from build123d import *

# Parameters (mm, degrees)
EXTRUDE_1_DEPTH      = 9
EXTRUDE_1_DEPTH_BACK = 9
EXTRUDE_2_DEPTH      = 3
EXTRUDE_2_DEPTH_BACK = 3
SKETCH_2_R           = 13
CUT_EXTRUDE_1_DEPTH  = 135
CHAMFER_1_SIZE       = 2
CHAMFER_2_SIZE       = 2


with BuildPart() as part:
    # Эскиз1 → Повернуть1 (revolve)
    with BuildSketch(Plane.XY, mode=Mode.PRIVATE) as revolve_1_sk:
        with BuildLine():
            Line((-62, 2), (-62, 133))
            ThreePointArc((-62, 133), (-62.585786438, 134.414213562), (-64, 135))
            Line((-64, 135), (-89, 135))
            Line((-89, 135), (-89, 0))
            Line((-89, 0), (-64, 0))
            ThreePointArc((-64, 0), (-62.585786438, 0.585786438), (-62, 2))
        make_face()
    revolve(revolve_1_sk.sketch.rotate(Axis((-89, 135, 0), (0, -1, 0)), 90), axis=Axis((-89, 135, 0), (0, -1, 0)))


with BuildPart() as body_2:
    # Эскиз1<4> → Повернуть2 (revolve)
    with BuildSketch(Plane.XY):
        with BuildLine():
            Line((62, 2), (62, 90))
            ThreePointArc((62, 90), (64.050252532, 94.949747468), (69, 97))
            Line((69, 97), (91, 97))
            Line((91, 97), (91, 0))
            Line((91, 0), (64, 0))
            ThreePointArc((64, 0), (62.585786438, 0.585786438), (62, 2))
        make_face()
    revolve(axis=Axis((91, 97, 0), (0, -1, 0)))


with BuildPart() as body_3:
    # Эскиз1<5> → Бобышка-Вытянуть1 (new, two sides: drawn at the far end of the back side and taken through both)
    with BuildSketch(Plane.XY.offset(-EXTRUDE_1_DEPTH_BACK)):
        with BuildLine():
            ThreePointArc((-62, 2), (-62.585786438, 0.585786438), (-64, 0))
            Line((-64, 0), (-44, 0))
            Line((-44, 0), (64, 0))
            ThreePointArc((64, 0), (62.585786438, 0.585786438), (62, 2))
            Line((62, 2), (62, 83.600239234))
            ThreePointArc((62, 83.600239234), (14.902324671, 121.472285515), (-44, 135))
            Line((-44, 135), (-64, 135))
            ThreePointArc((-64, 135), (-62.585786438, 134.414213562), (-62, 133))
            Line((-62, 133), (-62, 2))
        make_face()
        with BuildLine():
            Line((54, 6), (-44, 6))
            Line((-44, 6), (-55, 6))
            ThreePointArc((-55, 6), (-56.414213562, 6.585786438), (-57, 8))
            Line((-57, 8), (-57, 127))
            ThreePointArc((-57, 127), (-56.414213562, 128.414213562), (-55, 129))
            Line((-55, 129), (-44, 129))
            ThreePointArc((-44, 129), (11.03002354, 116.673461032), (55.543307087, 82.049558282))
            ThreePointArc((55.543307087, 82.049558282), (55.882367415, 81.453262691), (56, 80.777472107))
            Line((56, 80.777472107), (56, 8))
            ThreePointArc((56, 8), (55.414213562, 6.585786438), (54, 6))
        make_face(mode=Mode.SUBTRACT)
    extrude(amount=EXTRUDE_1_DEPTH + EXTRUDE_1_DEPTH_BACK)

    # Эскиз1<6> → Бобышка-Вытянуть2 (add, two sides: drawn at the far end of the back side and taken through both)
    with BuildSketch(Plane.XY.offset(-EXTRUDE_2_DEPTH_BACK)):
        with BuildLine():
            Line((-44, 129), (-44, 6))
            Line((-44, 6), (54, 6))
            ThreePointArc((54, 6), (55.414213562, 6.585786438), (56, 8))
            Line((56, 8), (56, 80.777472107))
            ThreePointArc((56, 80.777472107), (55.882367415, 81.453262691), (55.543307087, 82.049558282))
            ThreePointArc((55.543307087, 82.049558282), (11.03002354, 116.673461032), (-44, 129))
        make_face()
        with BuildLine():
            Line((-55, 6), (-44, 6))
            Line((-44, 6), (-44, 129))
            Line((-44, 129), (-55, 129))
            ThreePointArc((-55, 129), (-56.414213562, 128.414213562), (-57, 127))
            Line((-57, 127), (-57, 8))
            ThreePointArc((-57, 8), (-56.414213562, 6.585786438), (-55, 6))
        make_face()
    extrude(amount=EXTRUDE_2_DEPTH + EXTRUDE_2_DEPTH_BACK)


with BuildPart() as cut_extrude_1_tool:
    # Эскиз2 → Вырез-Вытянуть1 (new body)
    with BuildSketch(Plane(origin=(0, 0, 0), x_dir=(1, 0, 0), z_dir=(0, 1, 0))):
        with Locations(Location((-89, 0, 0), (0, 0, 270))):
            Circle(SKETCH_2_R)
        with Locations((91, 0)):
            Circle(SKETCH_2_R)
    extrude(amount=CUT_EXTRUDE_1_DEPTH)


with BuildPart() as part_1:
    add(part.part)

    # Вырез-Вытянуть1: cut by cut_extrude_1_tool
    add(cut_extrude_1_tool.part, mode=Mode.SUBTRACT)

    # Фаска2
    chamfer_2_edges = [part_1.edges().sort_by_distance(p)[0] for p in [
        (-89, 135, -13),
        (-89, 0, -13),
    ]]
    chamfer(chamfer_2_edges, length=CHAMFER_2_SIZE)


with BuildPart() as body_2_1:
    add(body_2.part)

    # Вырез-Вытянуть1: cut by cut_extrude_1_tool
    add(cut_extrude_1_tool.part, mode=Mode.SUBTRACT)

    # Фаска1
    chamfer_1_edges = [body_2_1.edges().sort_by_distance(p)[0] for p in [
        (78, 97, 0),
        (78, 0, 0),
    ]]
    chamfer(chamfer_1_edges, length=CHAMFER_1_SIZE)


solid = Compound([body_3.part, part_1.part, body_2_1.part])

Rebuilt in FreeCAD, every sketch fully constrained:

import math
import FreeCAD as App
import Part
import Sketcher

V = App.Vector


def edges_at(feature, points):
    """Names of the edges that pass closest to the given points."""
    edges = feature.Shape.Edges
    near = lambda p: min(range(len(edges)), key=lambda i: edges[i].distToShape(Part.Vertex(*p))[0])
    return sorted({f"Edge{near(p) + 1}" for p in points})

doc = App.newDocument("Part")
params = doc.addObject("Spreadsheet::Sheet", "Params")
for row, (alias, value) in enumerate([
    ("sketch1_radius", "2 mm"),
    ("sketch1_width", "25 mm"),
    ("sketch1_height", "131 mm"),
    ("revolution_angle", "360 deg"),
    ("sketch2_radius", "2 mm"),
    ("sketch2_radius2", "7 mm"),
    ("sketch2_width", "27 mm"),
    ("sketch2_height", "88 mm"),
    ("revolution2_angle", "360 deg"),
    ("sketch3_radius", "2 mm"),
    ("sketch3_radius2", "135 mm"),
    ("sketch3_radius3", "129 mm"),
    ("sketch3_width", "128 mm"),
    ("sketch3_width2", "20 mm"),
    ("pad1_length", "9 mm"),
    ("pad1_length2", "9 mm"),
    ("sketch4_radius", "2 mm"),
    ("sketch4_radius2", "129 mm"),
    ("sketch4_width", "11 mm"),
    ("sketch4_width2", "109 mm"),
    ("sketch4_height", "119 mm"),
    ("pad2_length", "3 mm"),
    ("pad2_length2", "3 mm"),
    ("sketch5_diameter", "26 mm"),
    ("pad3_length", "135 mm"),
    ("chamfer_size", "2 mm"),
    ("chamfer2_size", "2 mm"),
], start=1):
    params.set(f"A{row}", alias)
    params.set(f"B{row}", "=" + value)
    params.setAlias(f"B{row}", alias)

body = doc.addObject("PartDesign::Body", "Body")

sketch1 = body.newObject("Sketcher::SketchObject", "Sketch")
sketch1.AttachmentSupport = (doc.getObject("XY_Plane"), [""])
sketch1.MapMode = "FlatFace"
sketch1.addGeometry(Part.LineSegment(V(-62, 2, 0), V(-62, 133, 0)), False)
sketch1.addGeometry(Part.ArcOfCircle(Part.Circle(V(-64, 133, 0), V(0, 0, 1), 2), math.radians(0), math.radians(90)), False)
sketch1.addGeometry(Part.LineSegment(V(-64, 135, 0), V(-89, 135, 0)), False)
sketch1.addGeometry(Part.LineSegment(V(-89, 135, 0), V(-89, 0, 0)), False)
sketch1.addGeometry(Part.LineSegment(V(-89, 0, 0), V(-64, 0, 0)), False)
sketch1.addGeometry(Part.ArcOfCircle(Part.Circle(V(-64, 2, 0), V(0, 0, 1), 2), math.radians(-90), math.radians(0)), False)
sketch1.addGeometry(Part.LineSegment(V(-89, 135, 0), V(-89, 0, 0)), True)
sketch1.addConstraint(Sketcher.Constraint("Tangent", 0, 2, 1, 1))
sketch1.addConstraint(Sketcher.Constraint("Tangent", 1, 2, 2, 1))
sketch1.addConstraint(Sketcher.Constraint("Coincident", 2, 2, 3, 1))
sketch1.addConstraint(Sketcher.Constraint("Coincident", 3, 2, 4, 1))
sketch1.addConstraint(Sketcher.Constraint("Tangent", 4, 2, 5, 1))
sketch1.addConstraint(Sketcher.Constraint("Tangent", 5, 2, 0, 1))
sketch1.addConstraint(Sketcher.Constraint("Vertical", 0))
sketch1.addConstraint(Sketcher.Constraint("Horizontal", 2))
sketch1.addConstraint(Sketcher.Constraint("Vertical", 3))
sketch1.addConstraint(Sketcher.Constraint("Horizontal", 4))
sketch1.addConstraint(Sketcher.Constraint("Vertical", 6))
sketch1.addConstraint(Sketcher.Constraint("Coincident", 6, 1, 2, 2))
sketch1.addConstraint(Sketcher.Constraint("Equal", 1, 5))
sketch1.addConstraint(Sketcher.Constraint("PointOnObject", 3, 2, -1))
sketch1.addConstraint(Sketcher.Constraint("PointOnObject", 6, 2, -1))
sketch1.addConstraint(Sketcher.Constraint("Radius", 1, 2.0))
sketch1.addConstraint(Sketcher.Constraint("DistanceX", 2, 2, 2, 1, 25.0))
sketch1.addConstraint(Sketcher.Constraint("DistanceY", 0, 1, 0, 2, 131.0))
sketch1.addConstraint(Sketcher.Constraint("DistanceX", 1, 3, -1, 1, 64.0))
sketch1.setExpression("Constraints[15]", "Params.sketch1_radius")
sketch1.setExpression("Constraints[16]", "Params.sketch1_width")
sketch1.setExpression("Constraints[17]", "Params.sketch1_height")
revolution = body.newObject("PartDesign::Revolution", "Revolution")
revolution.Profile = sketch1
revolution.ReferenceAxis = (sketch1, ["Axis0"])
revolution.setExpression("Angle", "Params.revolution_angle")
body2 = doc.addObject("PartDesign::Body", "Body001")

sketch2 = body2.newObject("Sketcher::SketchObject", "Sketch001")
sketch2.AttachmentSupport = (doc.getObject("XY_Plane001"), [""])
sketch2.MapMode = "FlatFace"
sketch2.addGeometry(Part.LineSegment(V(62, 90, 0), V(62, 2, 0)), False)
sketch2.addGeometry(Part.ArcOfCircle(Part.Circle(V(64, 2, 0), V(0, 0, 1), 2), math.radians(-180), math.radians(-90)), False)
sketch2.addGeometry(Part.LineSegment(V(64, 0, 0), V(91, 0, 0)), False)
sketch2.addGeometry(Part.LineSegment(V(91, 0, 0), V(91, 97, 0)), False)
sketch2.addGeometry(Part.LineSegment(V(91, 97, 0), V(69, 97, 0)), False)
sketch2.addGeometry(Part.ArcOfCircle(Part.Circle(V(69, 90, 0), V(0, 0, 1), 7), math.radians(90), math.radians(180)), False)
sketch2.addGeometry(Part.LineSegment(V(91, 97, 0), V(91, 0, 0)), True)
sketch2.addConstraint(Sketcher.Constraint("Tangent", 0, 2, 1, 1))
sketch2.addConstraint(Sketcher.Constraint("Tangent", 1, 2, 2, 1))
sketch2.addConstraint(Sketcher.Constraint("Coincident", 2, 2, 3, 1))
sketch2.addConstraint(Sketcher.Constraint("Coincident", 3, 2, 4, 1))
sketch2.addConstraint(Sketcher.Constraint("Tangent", 4, 2, 5, 1))
sketch2.addConstraint(Sketcher.Constraint("Tangent", 5, 2, 0, 1))
sketch2.addConstraint(Sketcher.Constraint("Vertical", 0))
sketch2.addConstraint(Sketcher.Constraint("Horizontal", 2))
sketch2.addConstraint(Sketcher.Constraint("Vertical", 3))
sketch2.addConstraint(Sketcher.Constraint("Horizontal", 4))
sketch2.addConstraint(Sketcher.Constraint("Vertical", 6))
sketch2.addConstraint(Sketcher.Constraint("Coincident", 6, 1, 3, 2))
sketch2.addConstraint(Sketcher.Constraint("PointOnObject", 1, 2, -1))
sketch2.addConstraint(Sketcher.Constraint("PointOnObject", 6, 2, -1))
sketch2.addConstraint(Sketcher.Constraint("Radius", 1, 2.0))
sketch2.addConstraint(Sketcher.Constraint("Radius", 5, 7.0))
sketch2.addConstraint(Sketcher.Constraint("DistanceX", 2, 1, 2, 2, 27.0))
sketch2.addConstraint(Sketcher.Constraint("DistanceY", 0, 2, 0, 1, 88.0))
sketch2.addConstraint(Sketcher.Constraint("DistanceX", -1, 1, 1, 3, 64.0))
sketch2.setExpression("Constraints[14]", "Params.sketch2_radius")
sketch2.setExpression("Constraints[15]", "Params.sketch2_radius2")
sketch2.setExpression("Constraints[16]", "Params.sketch2_width")
sketch2.setExpression("Constraints[17]", "Params.sketch2_height")
revolution2 = body2.newObject("PartDesign::Revolution", "Revolution001")
revolution2.Profile = sketch2
revolution2.ReferenceAxis = (sketch2, ["Axis0"])
revolution2.setExpression("Angle", "Params.revolution2_angle")
body3 = doc.addObject("PartDesign::Body", "Body002")

sketch3 = body3.newObject("Sketcher::SketchObject", "Sketch002")
sketch3.AttachmentSupport = (doc.getObject("XY_Plane002"), [""])
sketch3.MapMode = "FlatFace"
sketch3.addGeometry(Part.ArcOfCircle(Part.Circle(V(-64, 2, 0), V(0, 0, 1), 2), math.radians(-90), math.radians(0)), False)
sketch3.addGeometry(Part.LineSegment(V(-64, 0, 0), V(64, 0, 0)), False)
sketch3.addGeometry(Part.ArcOfCircle(Part.Circle(V(64, 2, 0), V(0, 0, 1), 2), math.radians(-180), math.radians(-90)), False)
sketch3.addGeometry(Part.LineSegment(V(62, 2, 0), V(62, 83.6, 0)), False)
sketch3.addGeometry(Part.ArcOfCircle(Part.Circle(V(-44, 0, 0), V(0, 0, 1), 135), math.radians(38), math.radians(90)), False)
sketch3.addGeometry(Part.LineSegment(V(-44, 135, 0), V(-64, 135, 0)), False)
sketch3.addGeometry(Part.ArcOfCircle(Part.Circle(V(-64, 133, 0), V(0, 0, 1), 2), math.radians(0), math.radians(90)), False)
sketch3.addGeometry(Part.LineSegment(V(-62, 133, 0), V(-62, 2, 0)), False)
sketch3.addGeometry(Part.ArcOfCircle(Part.Circle(V(54, 8, 0), V(0, 0, 1), 2), math.radians(-90), math.radians(0)), False)
sketch3.addGeometry(Part.LineSegment(V(54, 6, 0), V(-55, 6, 0)), False)
sketch3.addGeometry(Part.ArcOfCircle(Part.Circle(V(-55, 8, 0), V(0, 0, 1), 2), math.radians(-180), math.radians(-90)), False)
sketch3.addGeometry(Part.LineSegment(V(-57, 8, 0), V(-57, 127, 0)), False)
sketch3.addGeometry(Part.ArcOfCircle(Part.Circle(V(-55, 127, 0), V(0, 0, 1), 2), math.radians(90), math.radians(180)), False)
sketch3.addGeometry(Part.LineSegment(V(-55, 129, 0), V(-44, 129, 0)), False)
sketch3.addGeometry(Part.ArcOfCircle(Part.Circle(V(-44, 0, 0), V(0, 0, 1), 129), math.radians(39), math.radians(90)), False)
sketch3.addGeometry(Part.ArcOfCircle(Part.Circle(V(54, 80.8, 0), V(0, 0, 1), 2), math.radians(0), math.radians(39)), False)
sketch3.addGeometry(Part.LineSegment(V(56, 80.8, 0), V(56, 8, 0)), False)
sketch3.addConstraint(Sketcher.Constraint("Tangent", 0, 1, 1, 1))
sketch3.addConstraint(Sketcher.Constraint("Tangent", 1, 2, 2, 2))
sketch3.addConstraint(Sketcher.Constraint("Tangent", 2, 1, 3, 1))
sketch3.addConstraint(Sketcher.Constraint("Coincident", 3, 2, 4, 1))
sketch3.addConstraint(Sketcher.Constraint("Tangent", 4, 2, 5, 1))
sketch3.addConstraint(Sketcher.Constraint("Tangent", 5, 2, 6, 2))
sketch3.addConstraint(Sketcher.Constraint("Tangent", 6, 1, 7, 1))
sketch3.addConstraint(Sketcher.Constraint("Tangent", 7, 2, 0, 2))
sketch3.addConstraint(Sketcher.Constraint("Tangent", 8, 1, 9, 1))
sketch3.addConstraint(Sketcher.Constraint("Tangent", 9, 2, 10, 2))
sketch3.addConstraint(Sketcher.Constraint("Tangent", 10, 1, 11, 1))
sketch3.addConstraint(Sketcher.Constraint("Tangent", 11, 2, 12, 2))
sketch3.addConstraint(Sketcher.Constraint("Tangent", 12, 1, 13, 1))
sketch3.addConstraint(Sketcher.Constraint("Tangent", 13, 2, 14, 2))
sketch3.addConstraint(Sketcher.Constraint("Tangent", 14, 1, 15, 2))
sketch3.addConstraint(Sketcher.Constraint("Tangent", 15, 1, 16, 1))
sketch3.addConstraint(Sketcher.Constraint("Tangent", 16, 2, 8, 2))
sketch3.addConstraint(Sketcher.Constraint("Horizontal", 1))
sketch3.addConstraint(Sketcher.Constraint("Vertical", 3))
sketch3.addConstraint(Sketcher.Constraint("Horizontal", 5))
sketch3.addConstraint(Sketcher.Constraint("Vertical", 7))
sketch3.addConstraint(Sketcher.Constraint("Horizontal", 9))
sketch3.addConstraint(Sketcher.Constraint("Vertical", 11))
sketch3.addConstraint(Sketcher.Constraint("Horizontal", 13))
sketch3.addConstraint(Sketcher.Constraint("Vertical", 16))
sketch3.addConstraint(Sketcher.Constraint("Coincident", 14, 3, 4, 3))
sketch3.addConstraint(Sketcher.Constraint("Equal", 0, 2))
sketch3.addConstraint(Sketcher.Constraint("Equal", 2, 6))
sketch3.addConstraint(Sketcher.Constraint("Equal", 6, 8))
sketch3.addConstraint(Sketcher.Constraint("Equal", 8, 10))
sketch3.addConstraint(Sketcher.Constraint("Equal", 10, 12))
sketch3.addConstraint(Sketcher.Constraint("Equal", 12, 15))
sketch3.addConstraint(Sketcher.Constraint("Symmetric", 0, 1, 1, 2, -1, 1))
sketch3.addConstraint(Sketcher.Constraint("PointOnObject", 4, 3, -1))
sketch3.addConstraint(Sketcher.Constraint("Radius", 0, 2.0))
sketch3.addConstraint(Sketcher.Constraint("Radius", 4, 135.0))
sketch3.addConstraint(Sketcher.Constraint("Radius", 14, 129.0))
sketch3.addConstraint(Sketcher.Constraint("DistanceX", 1, 1, 1, 2, 128.0))
sketch3.addConstraint(Sketcher.Constraint("DistanceX", 5, 2, 5, 1, 20.0))
sketch3.addConstraint(Sketcher.Constraint("DistanceX", 9, 2, 9, 1, 109.0))
sketch3.addConstraint(Sketcher.Constraint("DistanceX", 13, 1, 13, 2, 11.0))
sketch3.addConstraint(Sketcher.Constraint("DistanceY", 11, 1, 11, 2, 119.0))
sketch3.setExpression("Constraints[34]", "Params.sketch3_radius")
sketch3.setExpression("Constraints[35]", "Params.sketch3_radius2")
sketch3.setExpression("Constraints[36]", "Params.sketch3_radius3")
sketch3.setExpression("Constraints[37]", "Params.sketch3_width")
sketch3.setExpression("Constraints[38]", "Params.sketch3_width2")
pad1 = body3.newObject("PartDesign::Pad", "Pad")
pad1.Profile = sketch3
pad1.Type = "TwoLengths"
pad1.setExpression("Length", "Params.pad1_length")
pad1.setExpression("Length2", "Params.pad1_length2")

sketch4 = body3.newObject("Sketcher::SketchObject", "Sketch003")
sketch4.AttachmentSupport = (doc.getObject("XY_Plane002"), [""])
sketch4.MapMode = "FlatFace"
sketch4.addGeometry(Part.ArcOfCircle(Part.Circle(V(54, 8, 0), V(0, 0, 1), 2), math.radians(-90), math.radians(0)), False)
sketch4.addGeometry(Part.LineSegment(V(56, 8, 0), V(56, 80.8, 0)), False)
sketch4.addGeometry(Part.ArcOfCircle(Part.Circle(V(54, 80.8, 0), V(0, 0, 1), 2), math.radians(0), math.radians(39)), False)
sketch4.addGeometry(Part.ArcOfCircle(Part.Circle(V(-44, 0, 0), V(0, 0, 1), 129), math.radians(39), math.radians(90)), False)
sketch4.addGeometry(Part.LineSegment(V(-44, 129, 0), V(-55, 129, 0)), False)
sketch4.addGeometry(Part.ArcOfCircle(Part.Circle(V(-55, 127, 0), V(0, 0, 1), 2), math.radians(90), math.radians(180)), False)
sketch4.addGeometry(Part.LineSegment(V(-57, 127, 0), V(-57, 8, 0)), False)
sketch4.addGeometry(Part.ArcOfCircle(Part.Circle(V(-55, 8, 0), V(0, 0, 1), 2), math.radians(-180), math.radians(-90)), False)
sketch4.addGeometry(Part.LineSegment(V(-55, 6, 0), V(54, 6, 0)), False)
sketch4.addConstraint(Sketcher.Constraint("Tangent", 0, 2, 1, 1))
sketch4.addConstraint(Sketcher.Constraint("Tangent", 1, 2, 2, 1))
sketch4.addConstraint(Sketcher.Constraint("Tangent", 2, 2, 3, 1))
sketch4.addConstraint(Sketcher.Constraint("Tangent", 3, 2, 4, 1))
sketch4.addConstraint(Sketcher.Constraint("Tangent", 4, 2, 5, 1))
sketch4.addConstraint(Sketcher.Constraint("Tangent", 5, 2, 6, 1))
sketch4.addConstraint(Sketcher.Constraint("Tangent", 6, 2, 7, 1))
sketch4.addConstraint(Sketcher.Constraint("Tangent", 7, 2, 8, 1))
sketch4.addConstraint(Sketcher.Constraint("Tangent", 8, 2, 0, 1))
sketch4.addConstraint(Sketcher.Constraint("Vertical", 1))
sketch4.addConstraint(Sketcher.Constraint("Horizontal", 4))
sketch4.addConstraint(Sketcher.Constraint("Vertical", 6))
sketch4.addConstraint(Sketcher.Constraint("Horizontal", 8))
sketch4.addConstraint(Sketcher.Constraint("Equal", 0, 2))
sketch4.addConstraint(Sketcher.Constraint("Equal", 2, 5))
sketch4.addConstraint(Sketcher.Constraint("Equal", 5, 7))
sketch4.addConstraint(Sketcher.Constraint("PointOnObject", 3, 3, -1))
sketch4.addConstraint(Sketcher.Constraint("Radius", 0, 2.0))
sketch4.addConstraint(Sketcher.Constraint("Radius", 3, 129.0))
sketch4.addConstraint(Sketcher.Constraint("DistanceX", 4, 2, 4, 1, 11.0))
sketch4.addConstraint(Sketcher.Constraint("DistanceX", 8, 1, 8, 2, 109.0))
sketch4.addConstraint(Sketcher.Constraint("DistanceY", 6, 2, 6, 1, 119.0))
sketch4.addConstraint(Sketcher.Constraint("DistanceX", -1, 1, 0, 3, 54.0))
sketch4.setExpression("Constraints[17]", "Params.sketch4_radius")
sketch4.setExpression("Constraints[18]", "Params.sketch4_radius2")
sketch4.setExpression("Constraints[19]", "Params.sketch4_width")
sketch4.setExpression("Constraints[20]", "Params.sketch4_width2")
sketch4.setExpression("Constraints[21]", "Params.sketch4_height")
pad2 = body3.newObject("PartDesign::Pad", "Pad001")
pad2.Profile = sketch4
pad2.Type = "TwoLengths"
pad2.setExpression("Length", "Params.pad2_length")
pad2.setExpression("Length2", "Params.pad2_length2")
body4 = doc.addObject("PartDesign::Body", "Body003")
body4.AllowCompound = True

sketch5 = body4.newObject("Sketcher::SketchObject", "Sketch004")
sketch5.AttachmentSupport = (doc.getObject("XZ_Plane003"), [""])
sketch5.MapMode = "FlatFace"
sketch5.addGeometry(Part.Circle(V(-89, 0, 0), V(0, 0, 1), 13), False)
sketch5.addGeometry(Part.Circle(V(91, 0, 0), V(0, 0, 1), 13), False)
sketch5.addConstraint(Sketcher.Constraint("Equal", 0, 1))
sketch5.addConstraint(Sketcher.Constraint("PointOnObject", 0, 3, -1))
sketch5.addConstraint(Sketcher.Constraint("PointOnObject", 1, 3, -1))
sketch5.addConstraint(Sketcher.Constraint("Diameter", 0, 26.0))
sketch5.addConstraint(Sketcher.Constraint("DistanceX", 0, 3, -1, 1, 89.0))
sketch5.addConstraint(Sketcher.Constraint("DistanceX", -1, 1, 1, 3, 91.0))
sketch5.setExpression("Constraints[3]", "Params.sketch5_diameter")
pad3 = body4.newObject("PartDesign::Pad", "Pad002")
pad3.Profile = sketch5
pad3.setExpression("Length", "Params.pad3_length")
pad3.Reversed = True
doc.recompute()

body5 = doc.addObject("PartDesign::Body", "Body004")
body5.BaseFeature = body4
boolean = body.newObject("PartDesign::Boolean", "Boolean")
boolean.Type = "Cut"
boolean.addObjects([body5])
doc.recompute()

chamfer = body.newObject("PartDesign::Chamfer", "Chamfer")
chamfer.Base = (boolean, edges_at(boolean, [(-89, 135, -13), (-89, 0, -13)]))
chamfer.setExpression("Size", "Params.chamfer_size")
doc.recompute()

boolean2 = body2.newObject("PartDesign::Boolean", "Boolean001")
boolean2.Type = "Cut"
boolean2.addObjects([body4])
doc.recompute()

chamfer2 = body2.newObject("PartDesign::Chamfer", "Chamfer001")
chamfer2.Base = (boolean2, edges_at(boolean2, [(78, 97, 0), (78, 0, 0)]))
chamfer2.setExpression("Size", "Params.chamfer2_size")

doc.recompute()
